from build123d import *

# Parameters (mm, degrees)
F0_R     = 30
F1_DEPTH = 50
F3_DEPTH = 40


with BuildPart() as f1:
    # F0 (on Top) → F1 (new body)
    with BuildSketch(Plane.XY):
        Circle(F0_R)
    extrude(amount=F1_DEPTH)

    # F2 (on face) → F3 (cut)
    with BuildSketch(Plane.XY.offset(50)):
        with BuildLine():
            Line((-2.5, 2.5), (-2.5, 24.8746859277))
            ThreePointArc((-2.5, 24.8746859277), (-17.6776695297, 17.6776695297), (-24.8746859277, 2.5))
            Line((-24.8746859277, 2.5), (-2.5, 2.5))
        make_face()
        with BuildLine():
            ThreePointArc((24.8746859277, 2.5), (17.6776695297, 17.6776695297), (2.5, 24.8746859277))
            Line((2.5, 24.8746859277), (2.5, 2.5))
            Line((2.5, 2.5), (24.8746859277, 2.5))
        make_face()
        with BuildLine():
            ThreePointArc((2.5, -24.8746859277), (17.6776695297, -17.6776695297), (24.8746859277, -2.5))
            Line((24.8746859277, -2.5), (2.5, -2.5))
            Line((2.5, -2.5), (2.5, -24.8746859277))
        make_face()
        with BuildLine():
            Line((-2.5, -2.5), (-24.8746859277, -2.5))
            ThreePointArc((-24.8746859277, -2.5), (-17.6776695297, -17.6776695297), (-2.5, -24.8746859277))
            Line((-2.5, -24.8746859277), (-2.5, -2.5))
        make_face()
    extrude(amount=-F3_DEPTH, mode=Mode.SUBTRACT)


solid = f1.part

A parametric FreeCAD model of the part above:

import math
import FreeCAD as App
import Part
import Sketcher

V = App.Vector
Q = App.Units.Quantity

doc = App.newDocument("Part")
body = doc.addObject("PartDesign::Body", "Body")

# Sketch on XY plane
sketch1 = body.newObject("Sketcher::SketchObject", "Sketch")
sketch1.AttachmentSupport = (doc.getObject("XY_Plane"), [""])
sketch1.MapMode = "FlatFace"
sketch1.addGeometry(Part.Circle(V(0, 0, 0), V(0, 0, 1), 30), False)
sketch1.addConstraint(Sketcher.Constraint("Coincident", 0, 3, -1, 1))
sketch1.addConstraint(Sketcher.Constraint("Diameter", 0, Q("60 mm")))
pad1 = body.newObject("PartDesign::Pad", "Pad")
pad1.Profile = sketch1
pad1.Length = 50

# Sketch on XY plane
sketch2 = body.newObject("Sketcher::SketchObject", "Sketch001")
sketch2.AttachmentSupport = (doc.getObject("XY_Plane"), [""])
sketch2.MapMode = "FlatFace"
sketch2.AttachmentOffset = App.Placement(V(0, 0, 50), App.Rotation())
sketch2.addGeometry(Part.LineSegment(V(-2, 2, 0), V(-2, 25, 0)), False)
sketch2.addGeometry(Part.ArcOfCircle(Part.Circle(V(0, 0, 0), V(0, 0, 1), 25), math.radians(96), math.radians(174)), False)
sketch2.addGeometry(Part.LineSegment(V(-25, 2, 0), V(-2, 2, 0)), False)
sketch2.addGeometry(Part.ArcOfCircle(Part.Circle(V(0, 0, 0), V(0, 0, 1), 25), math.radians(6), math.radians(84)), False)
sketch2.addGeometry(Part.LineSegment(V(2, 25, 0), V(2, 2, 0)), False)
sketch2.addGeometry(Part.LineSegment(V(2, 2, 0), V(25, 2, 0)), False)
sketch2.addGeometry(Part.ArcOfCircle(Part.Circle(V(0, 0, 0), V(0, 0, 1), 25), math.radians(-84), math.radians(-6)), False)
sketch2.addGeometry(Part.LineSegment(V(25, -2, 0), V(2, -2, 0)), False)
sketch2.addGeometry(Part.LineSegment(V(2, -2, 0), V(2, -25, 0)), False)
sketch2.addGeometry(Part.LineSegment(V(-2, -2, 0), V(-25, -2, 0)), False)
sketch2.addGeometry(Part.ArcOfCircle(Part.Circle(V(0, 0, 0), V(0, 0, 1), 25), math.radians(-174), math.radians(-96)), False)
sketch2.addGeometry(Part.LineSegment(V(-2, -25, 0), V(-2, -2, 0)), False)
sketch2.addConstraint(Sketcher.Constraint("Coincident", 0, 2, 1, 1))
sketch2.addConstraint(Sketcher.Constraint("Coincident", 1, 2, 2, 1))
sketch2.addConstraint(Sketcher.Constraint("Coincident", 2, 2, 0, 1))
sketch2.addConstraint(Sketcher.Constraint("Coincident", 3, 2, 4, 1))
sketch2.addConstraint(Sketcher.Constraint("Coincident", 4, 2, 5, 1))
sketch2.addConstraint(Sketcher.Constraint("Coincident", 5, 2, 3, 1))
sketch2.addConstraint(Sketcher.Constraint("Coincident", 6, 2, 7, 1))
sketch2.addConstraint(Sketcher.Constraint("Coincident", 7, 2, 8, 1))
sketch2.addConstraint(Sketcher.Constraint("Coincident", 8, 2, 6, 1))
sketch2.addConstraint(Sketcher.Constraint("Coincident", 9, 2, 10, 1))
sketch2.addConstraint(Sketcher.Constraint("Coincident", 10, 2, 11, 1))
sketch2.addConstraint(Sketcher.Constraint("Coincident", 11, 2, 9, 1))
sketch2.addConstraint(Sketcher.Constraint("Vertical", 0))
sketch2.addConstraint(Sketcher.Constraint("Horizontal", 2))
sketch2.addConstraint(Sketcher.Constraint("Vertical", 4))
sketch2.addConstraint(Sketcher.Constraint("Horizontal", 5))
sketch2.addConstraint(Sketcher.Constraint("Horizontal", 7))
sketch2.addConstraint(Sketcher.Constraint("Vertical", 8))
sketch2.addConstraint(Sketcher.Constraint("Horizontal", 9))
sketch2.addConstraint(Sketcher.Constraint("Vertical", 11))
sketch2.addConstraint(Sketcher.Constraint("Coincident", 1, 3, -1, 1))
sketch2.addConstraint(Sketcher.Constraint("Coincident", 3, 3, -1, 1))
sketch2.addConstraint(Sketcher.Constraint("Coincident", 6, 3, -1, 1))
sketch2.addConstraint(Sketcher.Constraint("Coincident", 10, 3, -1, 1))
sketch2.addConstraint(Sketcher.Constraint("Equal", 1, 3))
sketch2.addConstraint(Sketcher.Constraint("Equal", 3, 6))
sketch2.addConstraint(Sketcher.Constraint("Equal", 6, 10))
sketch2.addConstraint(Sketcher.Constraint("Symmetric", 2, 2, 7, 2, -1, 1))
sketch2.addConstraint(Sketcher.Constraint("Symmetric", 4, 2, 11, 2, -1, 1))
sketch2.addConstraint(Sketcher.Constraint("Symmetric", 2, 2, 4, 2, -2))
sketch2.addConstraint(Sketcher.Constraint("Equal", 9, 0))
sketch2.addConstraint(Sketcher.Constraint("Radius", 1, Q("25 mm")))
sketch2.addConstraint(Sketcher.Constraint("DistanceX", 0, 2, 3, 2, Q("5 mm")))
pocket1 = body.newObject("PartDesign::Pocket", "Pocket")
pocket1.Profile = sketch2
pocket1.Length = 40

doc.recompute()
